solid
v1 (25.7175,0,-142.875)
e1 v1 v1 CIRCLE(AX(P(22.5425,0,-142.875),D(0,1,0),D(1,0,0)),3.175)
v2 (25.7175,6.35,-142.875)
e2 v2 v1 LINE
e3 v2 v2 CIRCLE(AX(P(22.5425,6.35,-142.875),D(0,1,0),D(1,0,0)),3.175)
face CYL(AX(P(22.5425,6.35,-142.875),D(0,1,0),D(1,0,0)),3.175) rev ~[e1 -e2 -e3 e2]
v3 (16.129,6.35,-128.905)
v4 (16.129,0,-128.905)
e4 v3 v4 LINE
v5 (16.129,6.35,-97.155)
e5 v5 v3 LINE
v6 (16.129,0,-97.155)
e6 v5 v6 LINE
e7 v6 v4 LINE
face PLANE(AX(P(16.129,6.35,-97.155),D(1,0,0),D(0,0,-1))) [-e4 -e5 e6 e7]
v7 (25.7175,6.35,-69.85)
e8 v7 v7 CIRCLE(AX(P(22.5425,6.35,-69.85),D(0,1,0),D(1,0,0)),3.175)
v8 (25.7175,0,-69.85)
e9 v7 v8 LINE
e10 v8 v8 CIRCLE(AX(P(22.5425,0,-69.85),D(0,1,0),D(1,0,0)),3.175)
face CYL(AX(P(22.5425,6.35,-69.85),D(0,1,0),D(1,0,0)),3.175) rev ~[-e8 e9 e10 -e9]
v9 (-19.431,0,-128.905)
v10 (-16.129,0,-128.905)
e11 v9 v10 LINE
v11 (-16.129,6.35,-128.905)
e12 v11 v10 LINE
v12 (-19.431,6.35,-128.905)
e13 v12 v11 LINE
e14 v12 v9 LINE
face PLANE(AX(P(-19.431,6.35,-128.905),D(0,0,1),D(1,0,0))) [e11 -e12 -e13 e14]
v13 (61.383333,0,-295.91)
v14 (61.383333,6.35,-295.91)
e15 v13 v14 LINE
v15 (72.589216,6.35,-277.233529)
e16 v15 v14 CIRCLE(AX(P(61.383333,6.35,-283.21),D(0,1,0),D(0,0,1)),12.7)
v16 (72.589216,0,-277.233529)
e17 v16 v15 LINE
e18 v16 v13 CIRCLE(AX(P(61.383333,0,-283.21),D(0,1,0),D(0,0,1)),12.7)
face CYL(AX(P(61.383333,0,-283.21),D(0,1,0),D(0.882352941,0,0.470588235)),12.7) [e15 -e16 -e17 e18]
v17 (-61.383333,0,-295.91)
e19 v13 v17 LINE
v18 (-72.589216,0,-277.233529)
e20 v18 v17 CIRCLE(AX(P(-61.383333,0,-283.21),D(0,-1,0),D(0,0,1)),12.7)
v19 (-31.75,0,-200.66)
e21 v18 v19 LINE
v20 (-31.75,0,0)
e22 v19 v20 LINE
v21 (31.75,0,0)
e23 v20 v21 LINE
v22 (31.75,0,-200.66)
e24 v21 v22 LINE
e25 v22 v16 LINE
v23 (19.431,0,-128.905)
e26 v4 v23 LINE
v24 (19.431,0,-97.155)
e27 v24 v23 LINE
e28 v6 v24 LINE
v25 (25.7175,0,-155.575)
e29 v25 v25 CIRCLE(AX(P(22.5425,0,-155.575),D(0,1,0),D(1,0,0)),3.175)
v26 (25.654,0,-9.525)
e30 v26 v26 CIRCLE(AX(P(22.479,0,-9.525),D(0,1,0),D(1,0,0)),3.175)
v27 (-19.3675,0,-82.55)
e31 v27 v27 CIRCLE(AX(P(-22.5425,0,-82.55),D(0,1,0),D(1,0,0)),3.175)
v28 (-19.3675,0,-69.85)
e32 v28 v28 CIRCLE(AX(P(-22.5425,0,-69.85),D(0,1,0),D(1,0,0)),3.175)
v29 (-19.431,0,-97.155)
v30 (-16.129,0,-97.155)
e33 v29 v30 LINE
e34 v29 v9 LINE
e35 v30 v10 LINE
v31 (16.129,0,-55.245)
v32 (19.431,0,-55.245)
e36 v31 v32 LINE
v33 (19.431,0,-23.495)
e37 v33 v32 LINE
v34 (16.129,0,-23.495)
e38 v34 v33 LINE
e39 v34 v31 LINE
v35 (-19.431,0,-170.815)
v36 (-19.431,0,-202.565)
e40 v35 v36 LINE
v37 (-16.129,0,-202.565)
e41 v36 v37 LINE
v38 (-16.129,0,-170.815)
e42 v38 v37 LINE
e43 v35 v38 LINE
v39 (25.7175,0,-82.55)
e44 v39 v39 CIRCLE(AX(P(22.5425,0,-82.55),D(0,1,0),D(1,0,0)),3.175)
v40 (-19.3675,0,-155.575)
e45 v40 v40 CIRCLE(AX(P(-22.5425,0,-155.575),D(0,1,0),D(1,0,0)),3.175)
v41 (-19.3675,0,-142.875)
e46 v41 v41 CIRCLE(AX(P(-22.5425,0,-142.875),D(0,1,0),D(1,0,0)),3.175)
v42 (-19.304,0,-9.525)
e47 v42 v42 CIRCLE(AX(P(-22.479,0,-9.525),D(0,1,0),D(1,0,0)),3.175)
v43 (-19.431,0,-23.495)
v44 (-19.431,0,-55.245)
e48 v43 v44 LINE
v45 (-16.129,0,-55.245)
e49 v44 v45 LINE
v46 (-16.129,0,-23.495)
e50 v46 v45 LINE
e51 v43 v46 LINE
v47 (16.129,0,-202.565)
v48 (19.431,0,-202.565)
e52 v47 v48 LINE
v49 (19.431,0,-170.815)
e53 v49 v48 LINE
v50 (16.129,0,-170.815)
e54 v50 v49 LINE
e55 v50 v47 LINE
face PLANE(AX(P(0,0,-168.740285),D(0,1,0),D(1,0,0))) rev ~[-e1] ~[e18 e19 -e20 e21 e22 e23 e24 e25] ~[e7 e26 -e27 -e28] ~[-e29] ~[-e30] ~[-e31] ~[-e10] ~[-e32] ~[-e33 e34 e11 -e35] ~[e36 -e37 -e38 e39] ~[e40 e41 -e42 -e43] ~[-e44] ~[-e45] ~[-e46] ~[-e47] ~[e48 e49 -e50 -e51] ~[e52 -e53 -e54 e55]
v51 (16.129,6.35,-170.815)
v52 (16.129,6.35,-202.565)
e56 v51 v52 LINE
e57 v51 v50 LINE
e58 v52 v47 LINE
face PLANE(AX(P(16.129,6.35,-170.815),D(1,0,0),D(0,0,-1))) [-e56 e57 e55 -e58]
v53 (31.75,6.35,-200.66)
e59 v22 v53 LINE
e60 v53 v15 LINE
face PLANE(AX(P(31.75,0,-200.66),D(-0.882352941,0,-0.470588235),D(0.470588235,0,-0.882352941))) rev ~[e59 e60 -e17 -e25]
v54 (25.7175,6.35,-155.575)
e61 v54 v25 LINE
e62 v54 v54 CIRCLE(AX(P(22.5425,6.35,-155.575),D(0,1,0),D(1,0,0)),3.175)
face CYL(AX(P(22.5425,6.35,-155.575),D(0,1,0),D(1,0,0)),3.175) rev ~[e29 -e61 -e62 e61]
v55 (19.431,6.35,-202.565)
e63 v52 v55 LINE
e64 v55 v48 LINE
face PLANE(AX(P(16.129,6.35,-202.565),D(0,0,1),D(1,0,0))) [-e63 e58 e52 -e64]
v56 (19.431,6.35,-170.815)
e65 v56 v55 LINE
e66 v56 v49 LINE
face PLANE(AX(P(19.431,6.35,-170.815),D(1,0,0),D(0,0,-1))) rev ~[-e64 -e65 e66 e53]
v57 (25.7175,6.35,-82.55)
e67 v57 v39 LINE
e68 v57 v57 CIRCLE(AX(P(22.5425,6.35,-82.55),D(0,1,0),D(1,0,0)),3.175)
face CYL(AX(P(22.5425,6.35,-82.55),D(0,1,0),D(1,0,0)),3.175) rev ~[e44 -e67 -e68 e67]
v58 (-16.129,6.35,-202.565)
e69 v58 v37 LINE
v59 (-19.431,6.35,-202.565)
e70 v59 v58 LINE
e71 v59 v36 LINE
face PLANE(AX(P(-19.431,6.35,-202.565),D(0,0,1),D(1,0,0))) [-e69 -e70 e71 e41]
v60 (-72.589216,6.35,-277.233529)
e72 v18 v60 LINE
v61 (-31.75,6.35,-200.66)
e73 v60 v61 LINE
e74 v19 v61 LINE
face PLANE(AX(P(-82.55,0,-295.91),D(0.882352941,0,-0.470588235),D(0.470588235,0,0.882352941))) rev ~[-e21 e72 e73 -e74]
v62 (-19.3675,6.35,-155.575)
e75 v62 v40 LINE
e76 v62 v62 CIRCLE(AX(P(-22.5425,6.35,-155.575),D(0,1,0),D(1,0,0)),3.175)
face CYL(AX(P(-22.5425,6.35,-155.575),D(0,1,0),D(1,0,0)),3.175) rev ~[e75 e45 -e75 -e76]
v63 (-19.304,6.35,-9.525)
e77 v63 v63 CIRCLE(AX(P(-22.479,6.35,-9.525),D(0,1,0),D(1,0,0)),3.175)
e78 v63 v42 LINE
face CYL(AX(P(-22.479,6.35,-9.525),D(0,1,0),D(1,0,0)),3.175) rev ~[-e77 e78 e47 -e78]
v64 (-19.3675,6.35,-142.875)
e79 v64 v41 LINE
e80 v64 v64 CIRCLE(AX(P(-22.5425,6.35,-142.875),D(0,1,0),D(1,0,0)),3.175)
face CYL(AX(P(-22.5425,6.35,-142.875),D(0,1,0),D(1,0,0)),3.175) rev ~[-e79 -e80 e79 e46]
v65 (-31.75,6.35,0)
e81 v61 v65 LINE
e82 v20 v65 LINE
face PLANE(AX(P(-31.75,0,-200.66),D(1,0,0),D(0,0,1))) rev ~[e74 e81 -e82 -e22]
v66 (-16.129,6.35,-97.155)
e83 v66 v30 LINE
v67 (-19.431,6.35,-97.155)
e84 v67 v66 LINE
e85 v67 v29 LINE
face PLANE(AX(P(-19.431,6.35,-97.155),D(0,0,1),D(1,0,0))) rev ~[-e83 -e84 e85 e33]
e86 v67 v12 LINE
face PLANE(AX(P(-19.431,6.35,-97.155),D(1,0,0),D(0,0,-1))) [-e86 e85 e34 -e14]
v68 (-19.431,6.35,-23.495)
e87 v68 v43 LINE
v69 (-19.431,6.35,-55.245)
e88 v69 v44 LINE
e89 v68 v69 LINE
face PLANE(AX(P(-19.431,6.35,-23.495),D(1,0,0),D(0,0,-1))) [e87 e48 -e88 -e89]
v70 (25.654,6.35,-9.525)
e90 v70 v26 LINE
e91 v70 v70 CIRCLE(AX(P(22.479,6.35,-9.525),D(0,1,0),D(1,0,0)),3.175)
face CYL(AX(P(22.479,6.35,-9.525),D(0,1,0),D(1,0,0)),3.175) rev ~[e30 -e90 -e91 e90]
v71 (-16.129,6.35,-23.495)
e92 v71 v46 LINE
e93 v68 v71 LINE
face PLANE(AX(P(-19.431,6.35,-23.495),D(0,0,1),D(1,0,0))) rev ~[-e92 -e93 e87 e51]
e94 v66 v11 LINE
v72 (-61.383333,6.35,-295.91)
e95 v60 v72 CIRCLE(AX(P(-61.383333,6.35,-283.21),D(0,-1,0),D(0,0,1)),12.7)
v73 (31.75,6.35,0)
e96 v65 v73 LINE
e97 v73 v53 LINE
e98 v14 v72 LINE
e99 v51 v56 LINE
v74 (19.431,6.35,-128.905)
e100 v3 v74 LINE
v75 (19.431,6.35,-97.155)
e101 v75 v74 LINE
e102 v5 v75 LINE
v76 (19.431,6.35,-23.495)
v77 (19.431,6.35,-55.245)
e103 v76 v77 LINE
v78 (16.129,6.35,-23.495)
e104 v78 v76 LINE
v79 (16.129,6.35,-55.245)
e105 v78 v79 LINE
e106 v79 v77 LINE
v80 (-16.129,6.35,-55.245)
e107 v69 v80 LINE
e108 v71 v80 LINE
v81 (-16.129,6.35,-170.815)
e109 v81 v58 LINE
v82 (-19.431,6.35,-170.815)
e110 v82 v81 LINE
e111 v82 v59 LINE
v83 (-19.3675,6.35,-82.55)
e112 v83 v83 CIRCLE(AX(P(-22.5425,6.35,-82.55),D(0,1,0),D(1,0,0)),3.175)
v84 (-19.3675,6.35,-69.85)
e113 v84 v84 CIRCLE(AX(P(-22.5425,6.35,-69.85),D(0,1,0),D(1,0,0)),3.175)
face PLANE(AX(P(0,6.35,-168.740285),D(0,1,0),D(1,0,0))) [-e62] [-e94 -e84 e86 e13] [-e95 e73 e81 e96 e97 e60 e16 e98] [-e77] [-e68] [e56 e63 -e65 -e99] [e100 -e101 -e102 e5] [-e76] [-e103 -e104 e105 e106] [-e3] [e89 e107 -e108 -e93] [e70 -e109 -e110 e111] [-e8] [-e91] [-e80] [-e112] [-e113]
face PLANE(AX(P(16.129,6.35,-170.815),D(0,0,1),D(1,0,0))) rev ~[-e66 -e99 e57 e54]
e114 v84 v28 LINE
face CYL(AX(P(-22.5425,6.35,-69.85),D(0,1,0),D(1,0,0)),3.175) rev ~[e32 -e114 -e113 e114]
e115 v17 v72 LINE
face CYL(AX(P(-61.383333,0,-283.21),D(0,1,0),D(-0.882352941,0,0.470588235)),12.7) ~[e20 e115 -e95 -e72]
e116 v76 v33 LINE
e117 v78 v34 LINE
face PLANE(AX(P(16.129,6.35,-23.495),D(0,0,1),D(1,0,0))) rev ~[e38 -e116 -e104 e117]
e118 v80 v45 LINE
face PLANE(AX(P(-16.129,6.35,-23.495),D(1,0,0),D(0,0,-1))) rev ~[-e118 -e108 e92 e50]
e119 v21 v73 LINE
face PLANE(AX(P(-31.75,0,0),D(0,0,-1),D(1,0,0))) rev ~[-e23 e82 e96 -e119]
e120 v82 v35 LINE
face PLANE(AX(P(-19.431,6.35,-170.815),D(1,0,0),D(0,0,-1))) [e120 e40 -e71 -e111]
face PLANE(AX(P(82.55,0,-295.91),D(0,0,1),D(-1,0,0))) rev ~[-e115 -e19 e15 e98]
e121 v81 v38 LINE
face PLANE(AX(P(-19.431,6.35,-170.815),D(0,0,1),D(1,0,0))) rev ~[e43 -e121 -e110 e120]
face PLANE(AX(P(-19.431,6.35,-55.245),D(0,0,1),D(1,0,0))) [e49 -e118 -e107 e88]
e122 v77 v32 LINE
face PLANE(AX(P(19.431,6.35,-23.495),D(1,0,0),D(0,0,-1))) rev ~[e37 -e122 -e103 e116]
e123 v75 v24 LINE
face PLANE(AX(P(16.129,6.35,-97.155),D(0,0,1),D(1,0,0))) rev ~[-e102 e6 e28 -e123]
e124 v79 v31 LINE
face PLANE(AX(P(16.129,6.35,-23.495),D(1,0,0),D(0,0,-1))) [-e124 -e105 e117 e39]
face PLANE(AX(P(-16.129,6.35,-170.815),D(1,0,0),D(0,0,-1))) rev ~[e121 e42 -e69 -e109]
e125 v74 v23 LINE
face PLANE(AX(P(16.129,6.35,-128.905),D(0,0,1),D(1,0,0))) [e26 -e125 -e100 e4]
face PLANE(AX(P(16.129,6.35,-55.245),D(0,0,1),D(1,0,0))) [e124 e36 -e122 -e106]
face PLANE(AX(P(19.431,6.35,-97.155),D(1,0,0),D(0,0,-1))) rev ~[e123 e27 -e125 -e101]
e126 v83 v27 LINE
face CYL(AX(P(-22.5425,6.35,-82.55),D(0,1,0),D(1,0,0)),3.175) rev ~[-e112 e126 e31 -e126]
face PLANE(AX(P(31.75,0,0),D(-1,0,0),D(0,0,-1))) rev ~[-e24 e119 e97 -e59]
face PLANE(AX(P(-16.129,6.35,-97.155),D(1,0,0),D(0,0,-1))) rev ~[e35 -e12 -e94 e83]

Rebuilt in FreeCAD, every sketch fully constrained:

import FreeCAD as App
import Part
import Sketcher
from FreeCAD import Vector
Q = App.Units.Quantity


def edges_at(feature, points):
    """Names of the edges that pass closest to the given points."""
    edges = feature.Shape.Edges
    near = lambda p: min(range(len(edges)), key=lambda i: edges[i].distToShape(Part.Vertex(*p))[0])
    return sorted({f"Edge{near(p) + 1}" for p in points})


def add_polygon(sketch, points):
    """Adds a closed chain of lines whose ends are joined by coincident constraints."""
    first, n = sketch.GeometryCount, len(points)
    for a, b in zip(points, points[1:] + points[:1]):
        sketch.addGeometry(Part.LineSegment(App.Vector(*a, 0), App.Vector(*b, 0)), False)
    for i in range(n):
        sketch.addConstraint(Sketcher.Constraint("Coincident", first + i, 2, first + (i + 1) % n, 1))

doc = App.newDocument("Part")
body = doc.addObject("PartDesign::Body", "Body")

# Sketch on XZ plane
sketch1 = body.newObject("Sketcher::SketchObject", "Sketch")
sketch1.AttachmentSupport = (doc.getObject("XZ_Plane"), [""])
sketch1.MapMode = "FlatFace"
add_polygon(sketch1, [(-31.75, 0), (31.75, 0), (31.75, -200.66), (82.55, -295.91), (-82.55, -295.91), (-31.75, -200.66)])  # lines 0-5
sketch1.addConstraint(Sketcher.Constraint("Horizontal", 0))
sketch1.addConstraint(Sketcher.Constraint("Vertical", 1))
sketch1.addConstraint(Sketcher.Constraint("Horizontal", 3))
sketch1.addConstraint(Sketcher.Constraint("Vertical", 5))
sketch1.addConstraint(Sketcher.Constraint("Symmetric", 0, 2, 5, 2, -1, 1))
sketch1.addConstraint(Sketcher.Constraint("Horizontal", 1, 2, 4, 2))
sketch1.addConstraint(Sketcher.Constraint("Equal", 2, 4))
sketch1.addConstraint(Sketcher.Constraint("DistanceX", 0, 1, 0, 2, Q("2.5 in")))
sketch1.addConstraint(Sketcher.Constraint("DistanceX", 3, 2, 3, 1, Q("6.5 in")))
sketch1.addConstraint(Sketcher.Constraint("DistanceY", 1, 2, 1, 1, Q("7.9 in")))
sketch1.addConstraint(Sketcher.Constraint("Distance", 2, Q("4.25 in")))
pad1 = body.newObject("PartDesign::Pad", "Pad")
pad1.Profile = sketch1
pad1.Length = Q("0.25 in")
pad1.Reversed = True

# Sketch on XZ plane
sketch2 = body.newObject("Sketcher::SketchObject", "Sketch001")
sketch2.AttachmentSupport = (doc.getObject("XZ_Plane"), [""])
sketch2.MapMode = "FlatFace"
sketch2.AttachmentOffset = App.Placement(Vector(0, 0, -0.25 * 25.4), App.Rotation())
add_polygon(sketch2, [(-19.431, -55.245), (-19.431, -23.495), (-16.129, -23.495), (-16.129, -55.245)])  # lines 0-3
add_polygon(sketch2, [(-19.431, -128.905), (-19.431, -97.155), (-16.129, -97.155), (-16.129, -128.905)])  # lines 4-7
add_polygon(sketch2, [(-19.431, -202.565), (-19.431, -170.815), (-16.129, -170.815), (-16.129, -202.565)])  # lines 8-11
add_polygon(sketch2, [(16.129, -55.245), (16.129, -23.495), (19.431, -23.495), (19.431, -55.245)])  # lines 12-15
add_polygon(sketch2, [(16.129, -128.905), (16.129, -97.155), (19.431, -97.155), (19.431, -128.905)])  # lines 16-19
add_polygon(sketch2, [(16.129, -202.565), (16.129, -170.815), (19.431, -170.815), (19.431, -202.565)])  # lines 20-23
sketch2.addConstraint(Sketcher.Constraint("Vertical", 0))
sketch2.addConstraint(Sketcher.Constraint("Horizontal", 1))
sketch2.addConstraint(Sketcher.Constraint("Vertical", 2))
sketch2.addConstraint(Sketcher.Constraint("Horizontal", 3))
sketch2.addConstraint(Sketcher.Constraint("Vertical", 4))
sketch2.addConstraint(Sketcher.Constraint("Horizontal", 5))
sketch2.addConstraint(Sketcher.Constraint("Vertical", 6))
sketch2.addConstraint(Sketcher.Constraint("Horizontal", 7))
sketch2.addConstraint(Sketcher.Constraint("Vertical", 8))
sketch2.addConstraint(Sketcher.Constraint("Horizontal", 9))
sketch2.addConstraint(Sketcher.Constraint("Vertical", 10))
sketch2.addConstraint(Sketcher.Constraint("Horizontal", 11))
sketch2.addConstraint(Sketcher.Constraint("Vertical", 12))
sketch2.addConstraint(Sketcher.Constraint("Horizontal", 13))
sketch2.addConstraint(Sketcher.Constraint("Vertical", 14))
sketch2.addConstraint(Sketcher.Constraint("Horizontal", 15))
sketch2.addConstraint(Sketcher.Constraint("Vertical", 16))
sketch2.addConstraint(Sketcher.Constraint("Horizontal", 17))
sketch2.addConstraint(Sketcher.Constraint("Vertical", 18))
sketch2.addConstraint(Sketcher.Constraint("Horizontal", 19))
sketch2.addConstraint(Sketcher.Constraint("Vertical", 20))
sketch2.addConstraint(Sketcher.Constraint("Horizontal", 21))
sketch2.addConstraint(Sketcher.Constraint("Vertical", 22))
sketch2.addConstraint(Sketcher.Constraint("Horizontal", 23))
sketch2.addConstraint(Sketcher.Constraint("Symmetric", 1, 2, 12, 2, -2))
sketch2.addConstraint(Sketcher.Constraint("Symmetric", 3, 2, 14, 2, -2))
sketch2.addConstraint(Sketcher.Constraint("Symmetric", 5, 2, 16, 2, -2))
sketch2.addConstraint(Sketcher.Constraint("Symmetric", 7, 2, 18, 2, -2))
sketch2.addConstraint(Sketcher.Constraint("Symmetric", 9, 2, 20, 2, -2))
sketch2.addConstraint(Sketcher.Constraint("Symmetric", 11, 2, 22, 2, -2))
sketch2.addConstraint(Sketcher.Constraint("Vertical", 3, 2, 4, 2))
sketch2.addConstraint(Sketcher.Constraint("Vertical", 2, 2, 5, 2))
sketch2.addConstraint(Sketcher.Constraint("Vertical", 7, 2, 8, 2))
sketch2.addConstraint(Sketcher.Constraint("Vertical", 6, 2, 9, 2))
sketch2.addConstraint(Sketcher.Constraint("Equal", 2, 4))
sketch2.addConstraint(Sketcher.Constraint("Equal", 6, 8))
sketch2.addConstraint(Sketcher.Constraint("DistanceX", 1, 1, 1, 2, Q("0.13 in")))
sketch2.addConstraint(Sketcher.Constraint("DistanceY", 0, 1, 0, 2, Q("1.25 in")))
sketch2.addConstraint(Sketcher.Constraint("DistanceY", 4, 2, 0, 2, Q("2.9 in")))
sketch2.addConstraint(Sketcher.Constraint("DistanceY", 8, 2, 4, 2, Q("2.9 in")))
sketch2.addConstraint(Sketcher.Constraint("DistanceX", 0, 2, 12, 2, Q("1.4 in")))
sketch2.addConstraint(Sketcher.Constraint("DistanceY", 0, 2, -1, 1, Q("0.925 in")))
pocket1 = body.newObject("PartDesign::Pocket", "Pocket")
pocket1.Profile = sketch2
pocket1.Type = "ThroughAll"
pocket1.Reversed = True

# Sketch on XZ plane
sketch3 = body.newObject("Sketcher::SketchObject", "Sketch002")
sketch3.AttachmentSupport = (doc.getObject("XZ_Plane"), [""])
sketch3.MapMode = "FlatFace"
sketch3.AttachmentOffset = App.Placement(Vector(0, 0, -0.25 * 25.4), App.Rotation())
sketch3.addGeometry(Part.Circle(Vector(-22.5425, -155.575, 0), Vector(0, 0, 1), 3.175), False)
sketch3.addGeometry(Part.Circle(Vector(-22.5425, -142.875, 0), Vector(0, 0, 1), 3.175), False)
sketch3.addGeometry(Part.Circle(Vector(22.5425, -142.875, 0), Vector(0, 0, 1), 3.175), False)
sketch3.addGeometry(Part.Circle(Vector(22.5425, -155.575, 0), Vector(0, 0, 1), 3.175), False)
sketch3.addGeometry(Part.Circle(Vector(-22.479, -9.525, 0), Vector(0, 0, 1), 3.175), False)
sketch3.addGeometry(Part.Circle(Vector(22.479, -9.525, 0), Vector(0, 0, 1), 3.175), False)
sketch3.addGeometry(Part.Circle(Vector(-22.5425, -82.55, 0), Vector(0, 0, 1), 3.175), False)
sketch3.addGeometry(Part.Circle(Vector(-22.5425, -69.85, 0), Vector(0, 0, 1), 3.175), False)
sketch3.addGeometry(Part.Circle(Vector(22.5425, -69.85, 0), Vector(0, 0, 1), 3.175), False)
sketch3.addGeometry(Part.Circle(Vector(22.5425, -82.55, 0), Vector(0, 0, 1), 3.175), False)
sketch3.addConstraint(Sketcher.Constraint("Equal", 0, 1))
sketch3.addConstraint(Sketcher.Constraint("Equal", 1, 2))
sketch3.addConstraint(Sketcher.Constraint("Equal", 2, 3))
sketch3.addConstraint(Sketcher.Constraint("Equal", 3, 4))
sketch3.addConstraint(Sketcher.Constraint("Equal", 4, 5))
sketch3.addConstraint(Sketcher.Constraint("Equal", 5, 6))
sketch3.addConstraint(Sketcher.Constraint("Equal", 6, 7))
sketch3.addConstraint(Sketcher.Constraint("Equal", 7, 8))
sketch3.addConstraint(Sketcher.Constraint("Equal", 8, 9))
sketch3.addConstraint(Sketcher.Constraint("Symmetric", 1, 3, 2, 3, -2))
sketch3.addConstraint(Sketcher.Constraint("Symmetric", 0, 3, 3, 3, -2))
sketch3.addConstraint(Sketcher.Constraint("Symmetric", 4, 3, 5, 3, -2))
sketch3.addConstraint(Sketcher.Constraint("Symmetric", 7, 3, 8, 3, -2))
sketch3.addConstraint(Sketcher.Constraint("Symmetric", 6, 3, 9, 3, -2))
sketch3.addConstraint(Sketcher.Constraint("Vertical", 0, 3, 1, 3))
sketch3.addConstraint(Sketcher.Constraint("Vertical", 1, 3, 6, 3))
sketch3.addConstraint(Sketcher.Constraint("Vertical", 6, 3, 7, 3))
sketch3.addConstraint(Sketcher.Constraint("Diameter", 0, Q("0.25 in")))
sketch3.addConstraint(Sketcher.Constraint("DistanceY", 0, 3, 1, 3, Q("0.5 in")))
sketch3.addConstraint(Sketcher.Constraint("DistanceY", 6, 3, 7, 3, Q("0.5 in")))
sketch3.addConstraint(Sketcher.Constraint("DistanceY", 6, 3, -1, 1, Q("3.25 in")))
sketch3.addConstraint(Sketcher.Constraint("DistanceY", 1, 3, 4, 3, Q("5.25 in")))
sketch3.addConstraint(Sketcher.Constraint("DistanceX", 4, 3, 5, 3, Q("1.77 in")))
sketch3.addConstraint(Sketcher.Constraint("DistanceY", 0, 3, -1, 1, Q("6.125 in")))
sketch3.addConstraint(Sketcher.Constraint("DistanceX", 1, 3, 2, 3, Q("1.775 in")))
pocket2 = body.newObject("PartDesign::Pocket", "Pocket001")
pocket2.Profile = sketch3
pocket2.Type = "ThroughAll"
pocket2.Reversed = True
doc.recompute()

fillet = body.newObject("PartDesign::Fillet", "Fillet")
fillet.Base = (pocket2, edges_at(pocket2, [(-82.55, 3.175, -295.91), (82.55, 3.175, -295.91)]))
fillet.Radius = Q("0.5 in")

doc.recompute()
